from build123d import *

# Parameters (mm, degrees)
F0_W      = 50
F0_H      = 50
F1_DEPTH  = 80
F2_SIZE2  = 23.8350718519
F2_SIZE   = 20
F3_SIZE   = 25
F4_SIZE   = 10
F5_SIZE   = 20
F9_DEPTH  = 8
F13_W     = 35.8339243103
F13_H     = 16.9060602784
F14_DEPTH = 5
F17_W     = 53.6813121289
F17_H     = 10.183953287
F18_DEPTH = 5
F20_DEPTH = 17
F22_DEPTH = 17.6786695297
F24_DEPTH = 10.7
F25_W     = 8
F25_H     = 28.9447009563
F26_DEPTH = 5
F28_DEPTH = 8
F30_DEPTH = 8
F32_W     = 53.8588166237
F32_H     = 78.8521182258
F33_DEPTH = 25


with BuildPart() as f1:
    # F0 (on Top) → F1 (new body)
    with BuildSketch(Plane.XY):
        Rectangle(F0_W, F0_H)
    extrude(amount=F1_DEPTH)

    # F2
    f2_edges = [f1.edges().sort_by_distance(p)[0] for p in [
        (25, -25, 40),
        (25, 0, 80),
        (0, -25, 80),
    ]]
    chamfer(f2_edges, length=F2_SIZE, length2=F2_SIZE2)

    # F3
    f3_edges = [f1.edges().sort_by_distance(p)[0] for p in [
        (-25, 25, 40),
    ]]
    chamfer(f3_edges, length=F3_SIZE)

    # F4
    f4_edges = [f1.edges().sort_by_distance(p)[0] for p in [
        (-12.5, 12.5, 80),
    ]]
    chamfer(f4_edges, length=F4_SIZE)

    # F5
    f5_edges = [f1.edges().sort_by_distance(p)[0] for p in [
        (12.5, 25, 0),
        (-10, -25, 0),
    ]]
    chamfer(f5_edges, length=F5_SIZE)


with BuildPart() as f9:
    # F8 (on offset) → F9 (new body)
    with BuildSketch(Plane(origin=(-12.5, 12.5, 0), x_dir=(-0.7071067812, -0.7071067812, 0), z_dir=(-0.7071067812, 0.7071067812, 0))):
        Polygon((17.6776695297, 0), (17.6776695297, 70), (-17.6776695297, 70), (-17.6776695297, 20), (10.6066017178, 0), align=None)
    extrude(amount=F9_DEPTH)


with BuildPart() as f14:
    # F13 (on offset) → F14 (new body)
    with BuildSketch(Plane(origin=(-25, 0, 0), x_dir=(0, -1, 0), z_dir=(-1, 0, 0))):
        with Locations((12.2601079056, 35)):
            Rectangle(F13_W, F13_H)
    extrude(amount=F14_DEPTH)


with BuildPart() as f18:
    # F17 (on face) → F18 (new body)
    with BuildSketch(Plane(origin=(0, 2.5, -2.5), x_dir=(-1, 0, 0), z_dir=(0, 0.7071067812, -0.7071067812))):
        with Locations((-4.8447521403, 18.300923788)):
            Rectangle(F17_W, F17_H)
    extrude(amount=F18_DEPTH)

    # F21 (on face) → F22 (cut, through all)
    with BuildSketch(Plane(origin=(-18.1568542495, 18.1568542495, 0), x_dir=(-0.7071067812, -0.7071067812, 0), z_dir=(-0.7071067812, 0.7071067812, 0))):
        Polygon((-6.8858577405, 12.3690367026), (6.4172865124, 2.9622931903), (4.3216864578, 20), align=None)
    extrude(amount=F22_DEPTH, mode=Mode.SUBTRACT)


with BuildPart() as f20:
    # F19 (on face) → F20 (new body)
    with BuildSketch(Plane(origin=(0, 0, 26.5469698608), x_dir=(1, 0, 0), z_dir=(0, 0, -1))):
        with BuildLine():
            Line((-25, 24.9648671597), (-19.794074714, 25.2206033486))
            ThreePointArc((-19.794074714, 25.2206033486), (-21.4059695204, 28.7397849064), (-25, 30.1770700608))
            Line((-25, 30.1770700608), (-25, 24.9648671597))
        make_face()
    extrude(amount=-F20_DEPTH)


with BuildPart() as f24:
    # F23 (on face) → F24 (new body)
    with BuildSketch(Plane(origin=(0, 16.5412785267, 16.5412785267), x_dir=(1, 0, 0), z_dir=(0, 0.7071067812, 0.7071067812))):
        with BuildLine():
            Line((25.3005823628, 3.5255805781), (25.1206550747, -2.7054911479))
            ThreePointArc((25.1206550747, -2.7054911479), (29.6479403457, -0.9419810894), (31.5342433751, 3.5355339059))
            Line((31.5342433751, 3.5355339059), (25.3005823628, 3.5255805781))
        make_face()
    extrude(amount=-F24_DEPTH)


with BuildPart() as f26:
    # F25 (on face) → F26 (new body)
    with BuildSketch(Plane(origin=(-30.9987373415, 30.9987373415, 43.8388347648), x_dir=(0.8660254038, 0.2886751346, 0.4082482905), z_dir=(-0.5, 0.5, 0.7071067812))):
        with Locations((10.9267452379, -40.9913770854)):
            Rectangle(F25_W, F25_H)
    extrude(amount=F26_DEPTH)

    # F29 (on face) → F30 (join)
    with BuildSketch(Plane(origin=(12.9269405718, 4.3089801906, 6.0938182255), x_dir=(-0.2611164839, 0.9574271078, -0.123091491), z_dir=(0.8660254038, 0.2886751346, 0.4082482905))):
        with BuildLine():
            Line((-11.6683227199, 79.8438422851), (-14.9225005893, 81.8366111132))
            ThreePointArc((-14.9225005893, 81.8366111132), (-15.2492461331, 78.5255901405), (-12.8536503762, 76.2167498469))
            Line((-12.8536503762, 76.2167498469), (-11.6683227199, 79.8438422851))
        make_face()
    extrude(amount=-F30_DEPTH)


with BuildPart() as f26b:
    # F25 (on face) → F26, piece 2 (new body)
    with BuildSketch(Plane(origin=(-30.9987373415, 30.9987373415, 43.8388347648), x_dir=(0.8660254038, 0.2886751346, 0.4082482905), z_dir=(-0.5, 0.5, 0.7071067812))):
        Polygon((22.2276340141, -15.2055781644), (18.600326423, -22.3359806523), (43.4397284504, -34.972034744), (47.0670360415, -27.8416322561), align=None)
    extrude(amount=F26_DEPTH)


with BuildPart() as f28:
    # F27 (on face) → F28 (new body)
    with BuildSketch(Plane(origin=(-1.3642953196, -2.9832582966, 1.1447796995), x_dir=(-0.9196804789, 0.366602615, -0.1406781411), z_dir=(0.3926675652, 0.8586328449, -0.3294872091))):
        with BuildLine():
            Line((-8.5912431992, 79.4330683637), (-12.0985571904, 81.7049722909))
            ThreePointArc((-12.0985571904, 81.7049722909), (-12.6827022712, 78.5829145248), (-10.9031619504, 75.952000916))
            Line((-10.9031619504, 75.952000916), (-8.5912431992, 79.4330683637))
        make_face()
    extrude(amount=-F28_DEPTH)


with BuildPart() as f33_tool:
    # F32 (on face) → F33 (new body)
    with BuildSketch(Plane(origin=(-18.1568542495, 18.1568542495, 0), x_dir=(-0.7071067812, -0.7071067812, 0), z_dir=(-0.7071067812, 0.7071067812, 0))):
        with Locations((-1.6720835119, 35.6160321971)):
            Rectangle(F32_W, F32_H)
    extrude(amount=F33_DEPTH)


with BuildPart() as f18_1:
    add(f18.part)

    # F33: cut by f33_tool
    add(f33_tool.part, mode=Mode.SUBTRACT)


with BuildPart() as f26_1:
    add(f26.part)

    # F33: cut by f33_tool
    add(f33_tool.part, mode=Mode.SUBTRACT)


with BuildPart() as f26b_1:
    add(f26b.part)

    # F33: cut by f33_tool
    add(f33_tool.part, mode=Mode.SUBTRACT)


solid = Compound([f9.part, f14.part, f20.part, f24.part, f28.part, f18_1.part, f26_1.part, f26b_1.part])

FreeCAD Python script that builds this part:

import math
import FreeCAD as App
import Part
import Sketcher


def edges_at(feature, points):
    """Names of the edges that pass closest to the given points."""
    edges = feature.Shape.Edges
    near = lambda p: min(range(len(edges)), key=lambda i: edges[i].distToShape(Part.Vertex(*p))[0])
    return sorted({f"Edge{near(p) + 1}" for p in points})


def add_polygon(sketch, points):
    """Adds a closed chain of lines whose ends are joined by coincident constraints."""
    first, n = sketch.GeometryCount, len(points)
    for a, b in zip(points, points[1:] + points[:1]):
        sketch.addGeometry(Part.LineSegment(App.Vector(*a, 0), App.Vector(*b, 0)), False)
    for i in range(n):
        sketch.addConstraint(Sketcher.Constraint("Coincident", first + i, 2, first + (i + 1) % n, 1))

doc = App.newDocument("Part")
params = doc.addObject("Spreadsheet::Sheet", "Params")
for row, (alias, value) in enumerate([
    ("sketch1_width", "50 mm"),
    ("pad1_length", "80 mm"),
    ("chamfer_size", "20 mm"),
    ("chamfer_size2", "23.835072 mm"),
    ("chamfer2_size", "25 mm"),
    ("chamfer3_size", "10 mm"),
    ("chamfer4_size", "20 mm"),
    ("sketch2_height", "70 mm"),
    ("sketch2_height2", "50 mm"),
    ("pad2_length", "8 mm"),
    ("pad3_length", "5 mm"),
    ("pad4_length", "5 mm"),
    ("pad5_length", "17 mm"),
    ("pad6_length", "10.7 mm"),
    ("sketch8_width", "8 mm"),
    ("pad7_length", "5 mm"),
    ("pad8_length", "8 mm"),
    ("sketch10_length", "8 mm"),
    ("pad9_length", "5 mm"),
    ("pad10_length", "8 mm"),
    ("pad11_length", "25 mm"),
], start=1):
    params.set(f"A{row}", alias)
    params.set(f"B{row}", "=" + value)
    params.setAlias(f"B{row}", alias)

body = doc.addObject("PartDesign::Body", "Body")

# Sketch on XY plane
sketch1 = doc.addObject("Sketcher::SketchObject", "Sketch")
body.addObject(sketch1)
sketch1.AttachmentSupport = (doc.XY_Plane, [""])
sketch1.MapMode = "FlatFace"
add_polygon(sketch1, [(-25, 25), (-25, -25), (25, -25), (25, 25)])  # lines 0-3
sketch1.addConstraint([
    Sketcher.Constraint("Vertical", 0),
    Sketcher.Constraint("Horizontal", 1),
    Sketcher.Constraint("Vertical", 2),
    Sketcher.Constraint("Horizontal", 3),
    Sketcher.Constraint("Symmetric", 0, 2, 2, 2, -1, 1),
    Sketcher.Constraint("Equal", 3, 0),
    Sketcher.Constraint("DistanceX", 1, 1, 1, 2, 50.0),
])
sketch1.setExpression("Constraints[10]", "Params.sketch1_width")
pad1 = doc.addObject("PartDesign::Pad", "Pad")
body.addObject(pad1)
pad1.Profile = sketch1
pad1.setExpression("Length", "Params.pad1_length")
doc.recompute()

chamfer = doc.addObject("PartDesign::Chamfer", "Chamfer")
body.addObject(chamfer)
chamfer.Base = (pad1, edges_at(pad1, [(25, -25, 40), (25, 0, 80), (0, -25, 80)]))
chamfer.ChamferType = "Two distances"
chamfer.setExpression("Size", "Params.chamfer_size")
chamfer.setExpression("Size2", "Params.chamfer_size2")
doc.recompute()

chamfer2 = doc.addObject("PartDesign::Chamfer", "Chamfer001")
body.addObject(chamfer2)
chamfer2.Base = (chamfer, edges_at(chamfer, [(-25, 25, 40)]))
chamfer2.setExpression("Size", "Params.chamfer2_size")
doc.recompute()

chamfer3 = doc.addObject("PartDesign::Chamfer", "Chamfer002")
body.addObject(chamfer3)
chamfer3.Base = (chamfer2, edges_at(chamfer2, [(-12.5, 12.5, 80)]))
chamfer3.setExpression("Size", "Params.chamfer3_size")
doc.recompute()

chamfer4 = doc.addObject("PartDesign::Chamfer", "Chamfer003")
body.addObject(chamfer4)
chamfer4.Base = (chamfer3, edges_at(chamfer3, [(12.5, 25, 0), (-10, -25, 0)]))
chamfer4.setExpression("Size", "Params.chamfer4_size")
body2 = doc.addObject("PartDesign::Body", "Body001")

# Sketch on an angled plane
sketch2 = doc.addObject("Sketcher::SketchObject", "Sketch001")
body2.addObject(sketch2)
sketch2.Placement = App.Placement(App.Vector(-12.5, 12.5, 0), App.Rotation(App.Vector(-0.707106781, -0.707106781, 0), App.Vector(0, 0, 0.999999999), App.Vector(-0.707106781, 0.707106781, 0), "ZXY"))
add_polygon(sketch2, [(18, 0), (18, 70), (-18, 70), (-18, 20), (11, 0)])  # lines 0-4
sketch2.addConstraint([
    Sketcher.Constraint("Vertical", 0),
    Sketcher.Constraint("Horizontal", 1),
    Sketcher.Constraint("Vertical", 2),
    Sketcher.Constraint("Horizontal", 4),
    Sketcher.Constraint("PointOnObject", 3, 2, -1),
    Sketcher.Constraint("DistanceY", 0, 1, 0, 2, 70.0),
    Sketcher.Constraint("DistanceY", 2, 2, 2, 1, 50.0),
    Sketcher.Constraint("DistanceX", 1, 2, 1, 1, 35.355339),
    Sketcher.Constraint("DistanceX", -1, 1, 3, 2, 10.606602),
    Sketcher.Constraint("DistanceX", 4, 1, 4, 2, 7.071068),
])
sketch2.setExpression("Constraints[10]", "Params.sketch2_height")
sketch2.setExpression("Constraints[11]", "Params.sketch2_height2")
pad2 = doc.addObject("PartDesign::Pad", "Pad001")
body2.addObject(pad2)
pad2.Profile = sketch2
pad2.setExpression("Length", "Params.pad2_length")
body3 = doc.addObject("PartDesign::Body", "Body002")

# Sketch on YZ plane
sketch3 = doc.addObject("Sketcher::SketchObject", "Sketch002")
body3.addObject(sketch3)
sketch3.AttachmentSupport = (doc.getObject("YZ_Plane002"), [""])
sketch3.MapMode = "FlatFace"
sketch3.AttachmentOffset = App.Placement(App.Vector(0, 0, -25), App.Rotation())
add_polygon(sketch3, [(6, 43), (6, 27), (-30, 27), (-30, 43)])  # lines 0-3
sketch3.addConstraint([
    Sketcher.Constraint("Vertical", 0),
    Sketcher.Constraint("Horizontal", 1),
    Sketcher.Constraint("Vertical", 2),
    Sketcher.Constraint("Horizontal", 3),
    Sketcher.Constraint("DistanceY", 0, 2, 0, 1, 16.90606),
    Sketcher.Constraint("DistanceX", 1, 2, 1, 1, 35.833924),
    Sketcher.Constraint("DistanceY", -1, 1, 0, 2, 26.54697),
    Sketcher.Constraint("DistanceX", 1, 2, -1, 1, 30.17707),
])
pad3 = doc.addObject("PartDesign::Pad", "Pad002")
body3.addObject(pad3)
pad3.Profile = sketch3
pad3.setExpression("Length", "Params.pad3_length")
pad3.Reversed = True
body4 = doc.addObject("PartDesign::Body", "Body003")

# Sketch on an angled plane
sketch4 = doc.addObject("Sketcher::SketchObject", "Sketch003")
body4.addObject(sketch4)
sketch4.Placement = App.Placement(App.Vector(0, 2.5, -2.5), App.Rotation(App.Vector(-1, 0, 0), App.Vector(0, 0.707106781, 0.707106781), App.Vector(0, 0.707106781, -0.707106781), "ZXY"))
add_polygon(sketch4, [(-32, 23), (-32, 13), (22, 13), (22, 23)])  # lines 0-3
sketch4.addConstraint([
    Sketcher.Constraint("Vertical", 0),
    Sketcher.Constraint("Horizontal", 1),
    Sketcher.Constraint("Vertical", 2),
    Sketcher.Constraint("Horizontal", 3),
    Sketcher.Constraint("DistanceY", -1, 1, 2, 2, 23.3929),
    Sketcher.Constraint("DistanceX", 1, 1, 1, 2, 53.681312),
    Sketcher.Constraint("DistanceY", 0, 2, 0, 1, 10.183953),
    Sketcher.Constraint("DistanceX", 0, 2, -1, 1, 31.685408),
])
pad4 = doc.addObject("PartDesign::Pad", "Pad003")
body4.addObject(pad4)
pad4.Profile = sketch4
pad4.setExpression("Length", "Params.pad4_length")

# Sketch on an angled plane
sketch5 = doc.addObject("Sketcher::SketchObject", "Sketch004")
body4.addObject(sketch5)
sketch5.Placement = App.Placement(App.Vector(-18.156854, 18.156854, 0), App.Rotation(App.Vector(-0.707106781, -0.707106781, 0), App.Vector(0, 0, 0.999999999), App.Vector(-0.707106781, 0.707106781, 0), "ZXY"))
add_polygon(sketch5, [(-7, 12), (6, 3), (4, 20)])  # lines 0-2
sketch5.addConstraint([
    Sketcher.Constraint("DistanceY", -1, 1, 1, 2, 20.0),
    Sketcher.Constraint("Distance", 1, 17.1661),
    Sketcher.Constraint("DistanceX", 1, 2, 0, 2, 2.0956),
    Sketcher.Constraint("Distance", 0, 16.292958),
    Sketcher.Constraint("Distance", 2, 13.558785),
    Sketcher.Constraint("DistanceX", -1, 1, 0, 2, 6.417287),
])
pocket1 = doc.addObject("PartDesign::Pocket", "Pocket")
body4.addObject(pocket1)
pocket1.Profile = sketch5
pocket1.Type = "ThroughAll"
pocket1.Reversed = True
body5 = doc.addObject("PartDesign::Body", "Body004")

# Sketch on XY plane
sketch6 = doc.addObject("Sketcher::SketchObject", "Sketch005")
body5.addObject(sketch6)
sketch6.AttachmentSupport = (doc.getObject("XY_Plane004"), [""])
sketch6.MapMode = "FlatFace"
sketch6.AttachmentOffset = App.Placement(App.Vector(0, 0, 26.54697), App.Rotation())
sketch6.addGeometry([
    Part.LineSegment(App.Vector(-25, -25, 0), App.Vector(-20, -25, 0)),
    Part.ArcOfCircle(Part.Circle(App.Vector(-25, -25, 0), App.Vector(0, 0, 1), 5), math.radians(-90), math.radians(-3)),
    Part.LineSegment(App.Vector(-25, -30, 0), App.Vector(-25, -25, 0)),
], False)
sketch6.addConstraint([
    Sketcher.Constraint("Coincident", 0, 2, 1, 2),
    Sketcher.Constraint("Coincident", 1, 1, 2, 1),
    Sketcher.Constraint("Coincident", 2, 2, 0, 1),
    Sketcher.Constraint("Vertical", 2),
    Sketcher.Constraint("Coincident", 2, 2, 1, 3),
    Sketcher.Constraint("DistanceX", 1, 3, -1, 1, 25.0),
    Sketcher.Constraint("Radius", 1, 5.212203),
    Sketcher.Constraint("DistanceY", 1, 1, -1, 1, 30.17707),
    Sketcher.Constraint("DistanceX", 0, 2, -1, 1, 19.794075),
])
pad5 = doc.addObject("PartDesign::Pad", "Pad004")
body5.addObject(pad5)
pad5.Profile = sketch6
pad5.setExpression("Length", "Params.pad5_length")
body6 = doc.addObject("PartDesign::Body", "Body005")

# Sketch on an angled plane
sketch7 = doc.addObject("Sketcher::SketchObject", "Sketch006")
body6.addObject(sketch7)
sketch7.Placement = App.Placement(App.Vector(0, 16.541279, 16.541279), App.Rotation(App.Vector(1, 0, 0), App.Vector(0, 0.707106781, -0.707106781), App.Vector(0, 0.707106781, 0.707106781), "ZXY"))
sketch7.addGeometry([
    Part.LineSegment(App.Vector(25, 4, 0), App.Vector(25, -3, 0)),
    Part.ArcOfCircle(Part.Circle(App.Vector(25, 4, 0), App.Vector(0, 0, 1), 6), math.radians(-92), math.radians(0)),
    Part.LineSegment(App.Vector(32, 4, 0), App.Vector(25, 4, 0)),
], False)
sketch7.addConstraint([
    Sketcher.Constraint("Coincident", 0, 2, 1, 1),
    Sketcher.Constraint("Coincident", 1, 2, 2, 1),
    Sketcher.Constraint("Coincident", 2, 2, 0, 1),
    Sketcher.Constraint("Coincident", 2, 2, 1, 3),
    Sketcher.Constraint("Radius", 1, 6.233669),
    Sketcher.Constraint("DistanceY", -1, 1, 1, 3, 3.525581),
    Sketcher.Constraint("DistanceY", 0, 2, -1, 1, 2.705491),
    Sketcher.Constraint("DistanceX", -1, 1, 1, 3, 25.300582),
    Sketcher.Constraint("DistanceY", -1, 1, 1, 2, 3.535534),
])
pad6 = doc.addObject("PartDesign::Pad", "Pad005")
body6.addObject(pad6)
pad6.Profile = sketch7
pad6.setExpression("Length", "Params.pad6_length")
pad6.Reversed = True
body7 = doc.addObject("PartDesign::Body", "Body006")

# Sketch on an angled plane
sketch8 = doc.addObject("Sketcher::SketchObject", "Sketch007")
body7.addObject(sketch8)
sketch8.Placement = App.Placement(App.Vector(-30.998737, 30.998737, 43.838835), App.Rotation(App.Vector(0.866025404, 0.288675135, 0.40824829), App.Vector(0, 0.816496581, -0.57735027), App.Vector(-0.5, 0.5, 0.707106781), "ZXY"))
add_polygon(sketch8, [(7, -27), (7, -55), (15, -55), (15, -27)])  # lines 0-3
sketch8.addConstraint([
    Sketcher.Constraint("Vertical", 0),
    Sketcher.Constraint("Horizontal", 1),
    Sketcher.Constraint("Vertical", 2),
    Sketcher.Constraint("Horizontal", 3),
    Sketcher.Constraint("DistanceX", 1, 1, 1, 2, 8.0),
    Sketcher.Constraint("DistanceY", 0, 2, 0, 1, 28.944701),
    Sketcher.Constraint("DistanceX", -1, 1, 0, 2, 6.926745),
    Sketcher.Constraint("DistanceY", 0, 2, -1, 1, 55.463728),
])
sketch8.setExpression("Constraints[8]", "Params.sketch8_width")
pad7 = doc.addObject("PartDesign::Pad", "Pad006")
body7.addObject(pad7)
pad7.Profile = sketch8
pad7.setExpression("Length", "Params.pad7_length")

# Sketch on an angled plane
sketch9 = doc.addObject("Sketcher::SketchObject", "Sketch008")
body7.addObject(sketch9)
sketch9.Placement = App.Placement(App.Vector(12.926941, 4.30898, 6.093818), App.Rotation(App.Vector(-0.261116484, 0.957427108, -0.123091491), App.Vector(-0.426401432, 0, 0.904534034), App.Vector(0.866025404, 0.288675135, 0.40824829), "ZXY"))
sketch9.addGeometry([
    Part.LineSegment(App.Vector(-11.7, 79.8, 0), App.Vector(-14.9, 81.8, 0)),
    Part.ArcOfCircle(Part.Circle(App.Vector(-11.7, 79.8, 0), App.Vector(0, 0, 1), 3.8), math.radians(149), math.radians(252)),
    Part.LineSegment(App.Vector(-12.9, 76.2, 0), App.Vector(-11.7, 79.8, 0)),
], False)
sketch9.addConstraint([
    Sketcher.Constraint("Coincident", 0, 2, 1, 1),
    Sketcher.Constraint("Coincident", 1, 2, 2, 1),
    Sketcher.Constraint("Coincident", 2, 2, 0, 1),
    Sketcher.Constraint("Coincident", 2, 2, 1, 3),
    Sketcher.Constraint("Radius", 1, 3.815862),
    Sketcher.Constraint("DistanceX", 0, 2, -1, 1, 14.922501),
    Sketcher.Constraint("DistanceY", -1, 1, 0, 2, 81.836611),
    Sketcher.Constraint("DistanceX", 1, 2, -1, 1, 12.85365),
    Sketcher.Constraint("DistanceY", -1, 1, 1, 2, 76.21675),
])
pad8 = doc.addObject("PartDesign::Pad", "Pad007")
body7.addObject(pad8)
pad8.Profile = sketch9
pad8.setExpression("Length", "Params.pad8_length")
pad8.Reversed = True
body8 = doc.addObject("PartDesign::Body", "Body007")

# Sketch on an angled plane
sketch10 = doc.addObject("Sketcher::SketchObject", "Sketch009")
body8.addObject(sketch10)
sketch10.Placement = App.Placement(App.Vector(-30.998737, 30.998737, 43.838835), App.Rotation(App.Vector(0.866025404, 0.288675135, 0.40824829), App.Vector(0, 0.816496581, -0.57735027), App.Vector(-0.5, 0.5, 0.707106781), "ZXY"))
add_polygon(sketch10, [(22, -15), (19, -22), (43, -35), (47, -28)])  # lines 0-3
sketch10.addConstraint([
    Sketcher.Constraint("Perpendicular", 0, 1),
    Sketcher.Constraint("Perpendicular", 1, 2),
    Sketcher.Constraint("Perpendicular", 2, 3),
    Sketcher.Constraint("Distance", 0, 8.0),
    Sketcher.Constraint("DistanceY", 0, 2, -1, 1, 22.335981),
    Sketcher.Constraint("DistanceX", -1, 1, 1, 2, 43.439728),
    Sketcher.Constraint("DistanceY", 3, 2, -1, 1, 15.205578),
    Sketcher.Constraint("DistanceX", 0, 2, 2, 2, 28.46671),
])
sketch10.setExpression("Constraints[7]", "Params.sketch10_length")
pad9 = doc.addObject("PartDesign::Pad", "Pad008")
body8.addObject(pad9)
pad9.Profile = sketch10
pad9.setExpression("Length", "Params.pad9_length")
body9 = doc.addObject("PartDesign::Body", "Body008")

# Sketch on an angled plane
sketch11 = doc.addObject("Sketcher::SketchObject", "Sketch010")
body9.addObject(sketch11)
sketch11.Placement = App.Placement(App.Vector(-1.364295, -2.983258, 1.14478), App.Rotation(App.Vector(-0.919680479, 0.366602615, -0.140678141), App.Vector(0, 0.358262697, 0.933620822), App.Vector(0.392667565, 0.858632845, -0.329487209), "ZXY"))
sketch11.addGeometry([
    Part.LineSegment(App.Vector(-8.6, 79.4, 0), App.Vector(-12.1, 81.7, 0)),
    Part.ArcOfCircle(Part.Circle(App.Vector(-8.6, 79.4, 0), App.Vector(0, 0, 1), 4.2), math.radians(147), math.radians(236)),
    Part.LineSegment(App.Vector(-10.9, 76, 0), App.Vector(-8.6, 79.4, 0)),
], False)
sketch11.addConstraint([
    Sketcher.Constraint("Coincident", 0, 2, 1, 1),
    Sketcher.Constraint("Coincident", 1, 2, 2, 1),
    Sketcher.Constraint("Coincident", 2, 2, 0, 1),
    Sketcher.Constraint("Coincident", 2, 2, 1, 3),
    Sketcher.Constraint("Radius", 1, 4.178851),
    Sketcher.Constraint("DistanceY", -1, 1, 1, 2, 75.952001),
    Sketcher.Constraint("DistanceY", -1, 1, 1, 3, 79.433068),
    Sketcher.Constraint("DistanceX", 1, 2, -1, 1, 10.903162),
    Sketcher.Constraint("DistanceY", 1, 2, 0, 2, 5.752971),
])
pad10 = doc.addObject("PartDesign::Pad", "Pad009")
body9.addObject(pad10)
pad10.Profile = sketch11
pad10.setExpression("Length", "Params.pad10_length")
pad10.Reversed = True
body10 = doc.addObject("PartDesign::Body", "Body009")

# Sketch on an angled plane
sketch12 = doc.addObject("Sketcher::SketchObject", "Sketch011")
body10.addObject(sketch12)
sketch12.Placement = App.Placement(App.Vector(-18.156854, 18.156854, 0), App.Rotation(App.Vector(-0.707106781, -0.707106781, 0), App.Vector(0, 0, 0.999999999), App.Vector(-0.707106781, 0.707106781, 0), "ZXY"))
add_polygon(sketch12, [(-29, 75), (-29, -4), (25, -4), (25, 75)])  # lines 0-3
sketch12.addConstraint([
    Sketcher.Constraint("Vertical", 0),
    Sketcher.Constraint("Horizontal", 1),
    Sketcher.Constraint("Vertical", 2),
    Sketcher.Constraint("Horizontal", 3),
    Sketcher.Constraint("DistanceY", 0, 2, 0, 1, 78.852118),
    Sketcher.Constraint("DistanceX", 1, 1, 1, 2, 53.858817),
    Sketcher.Constraint("DistanceX", 0, 2, -1, 1, 28.601492),
    Sketcher.Constraint("DistanceY", -1, 1, 2, 2, 75.042091),
])
pad11 = doc.addObject("PartDesign::Pad", "Pad010")
body10.addObject(pad11)
pad11.Profile = sketch12
pad11.setExpression("Length", "Params.pad11_length")
doc.recompute()

body11 = doc.addObject("PartDesign::Body", "Body010")
body11.BaseFeature = body10
boolean = doc.addObject("PartDesign::Boolean", "Boolean")
body4.addObject(boolean)
boolean.Type = "Cut"
boolean.addObjects([body11])
doc.recompute()

body12 = doc.addObject("PartDesign::Body", "Body011")
body12.BaseFeature = body10
boolean2 = doc.addObject("PartDesign::Boolean", "Boolean001")
body7.addObject(boolean2)
boolean2.Type = "Cut"
boolean2.addObjects([body12])
doc.recompute()

boolean3 = doc.addObject("PartDesign::Boolean", "Boolean002")
body8.addObject(boolean3)
boolean3.Type = "Cut"
boolean3.addObjects([body10])
body.Visibility = False

doc.recompute()
